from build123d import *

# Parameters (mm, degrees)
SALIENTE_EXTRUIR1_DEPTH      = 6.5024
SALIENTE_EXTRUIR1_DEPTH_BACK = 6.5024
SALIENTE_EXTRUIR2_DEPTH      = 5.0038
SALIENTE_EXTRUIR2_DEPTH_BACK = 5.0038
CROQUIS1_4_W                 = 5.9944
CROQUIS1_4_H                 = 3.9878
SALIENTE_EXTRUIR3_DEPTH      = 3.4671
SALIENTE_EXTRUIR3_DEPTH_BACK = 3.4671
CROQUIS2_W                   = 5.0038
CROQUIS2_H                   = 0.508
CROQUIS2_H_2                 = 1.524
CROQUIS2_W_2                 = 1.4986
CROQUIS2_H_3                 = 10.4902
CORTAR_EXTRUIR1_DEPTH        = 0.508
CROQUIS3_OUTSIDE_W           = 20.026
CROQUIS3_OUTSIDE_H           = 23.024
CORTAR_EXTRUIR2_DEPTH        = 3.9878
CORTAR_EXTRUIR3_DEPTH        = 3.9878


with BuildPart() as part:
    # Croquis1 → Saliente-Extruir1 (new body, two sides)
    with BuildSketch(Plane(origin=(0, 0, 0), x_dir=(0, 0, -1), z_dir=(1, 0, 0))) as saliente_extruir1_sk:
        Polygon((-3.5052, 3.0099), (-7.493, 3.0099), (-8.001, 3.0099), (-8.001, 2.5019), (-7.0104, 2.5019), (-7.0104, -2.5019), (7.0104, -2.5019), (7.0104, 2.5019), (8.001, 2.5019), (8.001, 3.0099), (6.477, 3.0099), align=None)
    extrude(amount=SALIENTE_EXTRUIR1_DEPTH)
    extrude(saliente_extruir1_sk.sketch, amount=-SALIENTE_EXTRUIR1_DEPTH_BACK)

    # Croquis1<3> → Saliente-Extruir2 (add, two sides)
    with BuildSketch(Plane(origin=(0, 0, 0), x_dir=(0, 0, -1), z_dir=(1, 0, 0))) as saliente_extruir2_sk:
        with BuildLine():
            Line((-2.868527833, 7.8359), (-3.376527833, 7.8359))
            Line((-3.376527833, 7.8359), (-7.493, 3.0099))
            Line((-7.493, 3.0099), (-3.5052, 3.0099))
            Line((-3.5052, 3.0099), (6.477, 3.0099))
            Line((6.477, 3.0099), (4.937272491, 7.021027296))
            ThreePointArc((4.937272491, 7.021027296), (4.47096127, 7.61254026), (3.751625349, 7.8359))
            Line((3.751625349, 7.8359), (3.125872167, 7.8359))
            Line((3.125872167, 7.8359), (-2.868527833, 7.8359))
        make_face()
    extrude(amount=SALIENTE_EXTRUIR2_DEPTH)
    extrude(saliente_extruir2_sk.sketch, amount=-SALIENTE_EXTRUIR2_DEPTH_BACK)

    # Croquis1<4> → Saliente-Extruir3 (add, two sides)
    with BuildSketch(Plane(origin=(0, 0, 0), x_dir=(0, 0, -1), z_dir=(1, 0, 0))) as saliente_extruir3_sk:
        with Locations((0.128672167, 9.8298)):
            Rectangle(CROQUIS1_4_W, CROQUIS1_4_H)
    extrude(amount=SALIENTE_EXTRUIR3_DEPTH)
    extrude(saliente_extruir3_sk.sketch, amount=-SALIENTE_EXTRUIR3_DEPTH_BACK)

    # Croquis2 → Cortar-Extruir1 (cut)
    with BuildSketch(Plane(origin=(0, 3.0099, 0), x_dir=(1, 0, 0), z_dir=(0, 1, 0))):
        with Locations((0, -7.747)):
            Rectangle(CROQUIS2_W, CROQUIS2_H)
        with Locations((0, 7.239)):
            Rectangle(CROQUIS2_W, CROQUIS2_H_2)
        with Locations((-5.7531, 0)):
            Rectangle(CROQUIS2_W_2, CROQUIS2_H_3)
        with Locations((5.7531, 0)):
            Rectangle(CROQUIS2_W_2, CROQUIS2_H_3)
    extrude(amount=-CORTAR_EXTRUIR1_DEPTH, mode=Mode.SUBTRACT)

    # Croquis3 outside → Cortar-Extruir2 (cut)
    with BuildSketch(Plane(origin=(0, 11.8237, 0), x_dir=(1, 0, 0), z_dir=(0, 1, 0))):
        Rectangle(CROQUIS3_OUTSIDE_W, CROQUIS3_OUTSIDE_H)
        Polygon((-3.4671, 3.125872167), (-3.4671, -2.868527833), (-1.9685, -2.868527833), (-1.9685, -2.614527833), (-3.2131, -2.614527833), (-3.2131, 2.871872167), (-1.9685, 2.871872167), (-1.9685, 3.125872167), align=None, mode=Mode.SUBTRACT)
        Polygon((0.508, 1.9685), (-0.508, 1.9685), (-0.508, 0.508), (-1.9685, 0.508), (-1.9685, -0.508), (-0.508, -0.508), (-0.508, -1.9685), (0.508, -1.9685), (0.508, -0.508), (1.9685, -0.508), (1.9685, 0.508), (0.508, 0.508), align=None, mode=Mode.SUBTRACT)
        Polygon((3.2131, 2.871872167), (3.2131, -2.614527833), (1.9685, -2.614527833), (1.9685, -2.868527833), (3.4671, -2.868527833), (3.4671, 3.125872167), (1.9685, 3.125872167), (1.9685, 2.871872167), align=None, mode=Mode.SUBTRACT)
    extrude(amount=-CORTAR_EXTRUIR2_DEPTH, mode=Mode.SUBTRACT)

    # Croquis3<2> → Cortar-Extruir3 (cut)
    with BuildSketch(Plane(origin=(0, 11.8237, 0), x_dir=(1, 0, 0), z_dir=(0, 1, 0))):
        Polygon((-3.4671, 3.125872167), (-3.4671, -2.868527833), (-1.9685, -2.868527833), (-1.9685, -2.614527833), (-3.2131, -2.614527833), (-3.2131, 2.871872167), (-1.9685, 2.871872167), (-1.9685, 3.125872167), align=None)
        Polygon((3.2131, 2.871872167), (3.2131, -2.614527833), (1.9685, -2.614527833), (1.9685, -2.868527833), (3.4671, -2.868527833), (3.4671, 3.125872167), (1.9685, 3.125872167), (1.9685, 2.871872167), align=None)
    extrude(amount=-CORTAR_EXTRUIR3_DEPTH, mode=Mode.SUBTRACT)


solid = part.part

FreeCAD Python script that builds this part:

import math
import FreeCAD as App
import Part
import Sketcher
from FreeCAD import Vector
Q = App.Units.Quantity

doc = App.newDocument("Part")
body = doc.addObject("PartDesign::Body", "Body")

# Sketch on YZ plane
sketch1 = body.newObject("Sketcher::SketchObject", "Sketch")
sketch1.AttachmentSupport = (doc.getObject("YZ_Plane"), [""])
sketch1.MapMode = "FlatFace"
sketch1.addGeometry([
    Part.LineSegment(Vector(3, 8, 0), Vector(2.5, 8, 0)),  # 0
    Part.LineSegment(Vector(2.5, 8, 0), Vector(2.5, 7, 0)),  # 1
    Part.LineSegment(Vector(2.5, 7, 0), Vector(-2.5, 7, 0)),  # 2
    Part.LineSegment(Vector(-2.5, 7, 0), Vector(-2.5, -7, 0)),  # 3
    Part.LineSegment(Vector(-2.5, -7, 0), Vector(2.5, -7, 0)),  # 4
    Part.LineSegment(Vector(2.5, -7, 0), Vector(2.5, -8, 0)),  # 5
    Part.LineSegment(Vector(2.5, -8, 0), Vector(3, -8, 0)),  # 6
    Part.LineSegment(Vector(3, -8, 0), Vector(3, 8, 0)),  # 7
], False)
sketch1.addConstraint([
    Sketcher.Constraint("Coincident", 0, 2, 1, 1),
    Sketcher.Constraint("Coincident", 1, 2, 2, 1),
    Sketcher.Constraint("Coincident", 2, 2, 3, 1),
    Sketcher.Constraint("Coincident", 3, 2, 4, 1),
    Sketcher.Constraint("Coincident", 4, 2, 5, 1),
    Sketcher.Constraint("Coincident", 5, 2, 6, 1),
    Sketcher.Constraint("Coincident", 6, 2, 7, 1),
    Sketcher.Constraint("Coincident", 7, 2, 0, 1),
    Sketcher.Constraint("Horizontal", 0),
    Sketcher.Constraint("Vertical", 1),
    Sketcher.Constraint("Horizontal", 2),
    Sketcher.Constraint("Vertical", 3),
    Sketcher.Constraint("Horizontal", 4),
    Sketcher.Constraint("Vertical", 5),
    Sketcher.Constraint("Horizontal", 6),
    Sketcher.Constraint("Vertical", 7),
    Sketcher.Constraint("Symmetric", 1, 2, 3, 2, -1, 1),
    Sketcher.Constraint("Symmetric", 0, 2, 5, 2, -1),
    Sketcher.Constraint("DistanceX", 0, 2, 0, 1, Q("0.02 in")),
    Sketcher.Constraint("DistanceY", 7, 1, 7, 2, Q("0.63 in")),
    Sketcher.Constraint("DistanceX", 2, 2, 2, 1, Q("0.197 in")),
    Sketcher.Constraint("DistanceY", 1, 2, 1, 1, Q("0.039 in")),
])
pad1 = body.newObject("PartDesign::Pad", "Pad")
pad1.Profile = sketch1
pad1.Type = "TwoLengths"
pad1.Length = Q("0.256 in")
pad1.Length2 = Q("0.256 in")

# Sketch on YZ plane
sketch2 = body.newObject("Sketcher::SketchObject", "Sketch001")
sketch2.AttachmentSupport = (doc.getObject("YZ_Plane"), [""])
sketch2.MapMode = "FlatFace"
sketch2.addGeometry([
    Part.LineSegment(Vector(7.8, 3.4, 0), Vector(3, 7.5, 0)),  # 0
    Part.LineSegment(Vector(3, 7.5, 0), Vector(3, -6.5, 0)),  # 1
    Part.LineSegment(Vector(3, -6.5, 0), Vector(7, -4.9, 0)),  # 2
    Part.ArcOfCircle(Part.Circle(Vector(6.6, -3.8, 0), Vector(0, 0, 1), 1.3), math.radians(-69), math.radians(0)),  # 3
    Part.LineSegment(Vector(7.8, -3.8, 0), Vector(7.8, 3.4, 0)),  # 4
], False)
sketch2.addConstraint([
    Sketcher.Constraint("Coincident", 0, 2, 1, 1),
    Sketcher.Constraint("Coincident", 1, 2, 2, 1),
    Sketcher.Constraint("Tangent", 2, 2, 3, 1),
    Sketcher.Constraint("Tangent", 3, 2, 4, 1),
    Sketcher.Constraint("Coincident", 4, 2, 0, 1),
    Sketcher.Constraint("Vertical", 1),
    Sketcher.Constraint("Vertical", 4),
    Sketcher.Constraint("Radius", 3, Q("0.05 in")),
    Sketcher.Constraint("Angle", 2, Q("21 deg")),
    Sketcher.Constraint("DistanceY", 1, 2, 1, 1, Q("0.55 in")),
    Sketcher.Constraint("DistanceX", 0, 2, 3, 3, Q("0.14 in")),
    Sketcher.Constraint("DistanceY", -1, 1, 0, 2, Q("0.295 in")),
    Sketcher.Constraint("DistanceX", -1, 1, 3, 3, Q("0.2585 in")),
    Sketcher.Constraint("DistanceY", 2, 2, 4, 2, Q("8.3138 mm")),
])
pad2 = body.newObject("PartDesign::Pad", "Pad001")
pad2.Profile = sketch2
pad2.Type = "TwoLengths"
pad2.Length = Q("0.197 in")
pad2.Length2 = Q("0.197 in")

# Sketch on YZ plane
sketch3 = body.newObject("Sketcher::SketchObject", "Sketch002")
sketch3.AttachmentSupport = (doc.getObject("YZ_Plane"), [""])
sketch3.MapMode = "FlatFace"
sketch3.addGeometry([
    Part.LineSegment(Vector(11.8, 2.9, 0), Vector(7.8, 2.9, 0)),
    Part.LineSegment(Vector(7.8, 2.9, 0), Vector(7.8, -3.1, 0)),
    Part.LineSegment(Vector(7.8, -3.1, 0), Vector(11.8, -3.1, 0)),
    Part.LineSegment(Vector(11.8, -3.1, 0), Vector(11.8, 2.9, 0)),
], False)
sketch3.addConstraint([
    Sketcher.Constraint("Coincident", 0, 2, 1, 1),
    Sketcher.Constraint("Coincident", 1, 2, 2, 1),
    Sketcher.Constraint("Coincident", 2, 2, 3, 1),
    Sketcher.Constraint("Coincident", 3, 2, 0, 1),
    Sketcher.Constraint("Horizontal", 0),
    Sketcher.Constraint("Vertical", 1),
    Sketcher.Constraint("Horizontal", 2),
    Sketcher.Constraint("Vertical", 3),
    Sketcher.Constraint("DistanceX", 0, 2, 0, 1, Q("0.157 in")),
    Sketcher.Constraint("DistanceY", 1, 2, 1, 1, Q("0.236 in")),
    Sketcher.Constraint("DistanceX", -1, 1, 0, 2, Q("0.3085 in")),
    Sketcher.Constraint("DistanceY", -1, 1, 0, 2, Q("2.868528 mm")),
])
pad3 = body.newObject("PartDesign::Pad", "Pad002")
pad3.Profile = sketch3
pad3.Type = "TwoLengths"
pad3.Length = Q("0.1365 in")
pad3.Length2 = Q("0.1365 in")

# Sketch on XZ plane
sketch4 = body.newObject("Sketcher::SketchObject", "Sketch003")
sketch4.AttachmentSupport = (doc.getObject("XZ_Plane"), [""])
sketch4.MapMode = "FlatFace"
sketch4.AttachmentOffset = App.Placement(Vector(0, 0, -0.1185 * 25.4), App.Rotation())
sketch4.addGeometry([
    Part.LineSegment(Vector(-2.5, 7.5, 0), Vector(-2.5, 8, 0)),  # 0
    Part.LineSegment(Vector(-2.5, 8, 0), Vector(2.5, 8, 0)),  # 1
    Part.LineSegment(Vector(2.5, 8, 0), Vector(2.5, 7.5, 0)),  # 2
    Part.LineSegment(Vector(2.5, 7.5, 0), Vector(-2.5, 7.5, 0)),  # 3
    Part.LineSegment(Vector(-2.5, -8, 0), Vector(-2.5, -6.5, 0)),  # 4
    Part.LineSegment(Vector(-2.5, -6.5, 0), Vector(2.5, -6.5, 0)),  # 5
    Part.LineSegment(Vector(2.5, -6.5, 0), Vector(2.5, -8, 0)),  # 6
    Part.LineSegment(Vector(2.5, -8, 0), Vector(-2.5, -8, 0)),  # 7
    Part.LineSegment(Vector(-6.5, -5.2, 0), Vector(-6.5, 5.2, 0)),  # 8
    Part.LineSegment(Vector(-6.5, 5.2, 0), Vector(-5, 5.2, 0)),  # 9
    Part.LineSegment(Vector(-5, 5.2, 0), Vector(-5, -5.2, 0)),  # 10
    Part.LineSegment(Vector(-5, -5.2, 0), Vector(-6.5, -5.2, 0)),  # 11
    Part.LineSegment(Vector(5, -5.2, 0), Vector(5, 5.2, 0)),  # 12
    Part.LineSegment(Vector(5, 5.2, 0), Vector(6.5, 5.2, 0)),  # 13
    Part.LineSegment(Vector(6.5, 5.2, 0), Vector(6.5, -5.2, 0)),  # 14
    Part.LineSegment(Vector(6.5, -5.2, 0), Vector(5, -5.2, 0)),  # 15
], False)
sketch4.addConstraint([
    Sketcher.Constraint("Coincident", 0, 2, 1, 1),
    Sketcher.Constraint("Coincident", 1, 2, 2, 1),
    Sketcher.Constraint("Coincident", 2, 2, 3, 1),
    Sketcher.Constraint("Coincident", 3, 2, 0, 1),
    Sketcher.Constraint("Coincident", 4, 2, 5, 1),
    Sketcher.Constraint("Coincident", 5, 2, 6, 1),
    Sketcher.Constraint("Coincident", 6, 2, 7, 1),
    Sketcher.Constraint("Coincident", 7, 2, 4, 1),
    Sketcher.Constraint("Coincident", 8, 2, 9, 1),
    Sketcher.Constraint("Coincident", 9, 2, 10, 1),
    Sketcher.Constraint("Coincident", 10, 2, 11, 1),
    Sketcher.Constraint("Coincident", 11, 2, 8, 1),
    Sketcher.Constraint("Coincident", 12, 2, 13, 1),
    Sketcher.Constraint("Coincident", 13, 2, 14, 1),
    Sketcher.Constraint("Coincident", 14, 2, 15, 1),
    Sketcher.Constraint("Coincident", 15, 2, 12, 1),
    Sketcher.Constraint("Vertical", 0),
    Sketcher.Constraint("Horizontal", 1),
    Sketcher.Constraint("Vertical", 2),
    Sketcher.Constraint("Horizontal", 3),
    Sketcher.Constraint("Vertical", 4),
    Sketcher.Constraint("Horizontal", 5),
    Sketcher.Constraint("Vertical", 6),
    Sketcher.Constraint("Horizontal", 7),
    Sketcher.Constraint("Vertical", 8),
    Sketcher.Constraint("Horizontal", 9),
    Sketcher.Constraint("Vertical", 10),
    Sketcher.Constraint("Horizontal", 11),
    Sketcher.Constraint("Vertical", 12),
    Sketcher.Constraint("Horizontal", 13),
    Sketcher.Constraint("Vertical", 14),
    Sketcher.Constraint("Horizontal", 15),
    Sketcher.Constraint("Symmetric", 0, 2, 6, 2, -1, 1),
    Sketcher.Constraint("Symmetric", 10, 2, 12, 2, -1, 1),
    Sketcher.Constraint("Symmetric", 8, 2, 14, 2, -1, 1),
    Sketcher.Constraint("Horizontal", 9, 2, 12, 2),
    Sketcher.Constraint("Vertical", 3, 2, 4, 2),
    Sketcher.Constraint("Vertical", 2, 2, 5, 2),
    Sketcher.Constraint("DistanceY", 0, 1, 0, 2, Q("0.02 in")),
    Sketcher.Constraint("DistanceY", 4, 1, 4, 2, Q("0.06 in")),
    Sketcher.Constraint("DistanceX", 1, 1, 1, 2, Q("0.197 in")),
    Sketcher.Constraint("DistanceX", 9, 1, 9, 2, Q("0.059 in")),
    Sketcher.Constraint("DistanceY", 8, 1, 8, 2, Q("0.413 in")),
    Sketcher.Constraint("DistanceY", 4, 2, 3, 2, Q("0.55 in")),
    Sketcher.Constraint("DistanceX", 8, 2, -1, 1, Q("0.256 in")),
])
pocket1 = body.newObject("PartDesign::Pocket", "Pocket")
pocket1.Profile = sketch4
pocket1.Length = Q("0.02 in")
pocket1.Reversed = True

# Sketch on XZ plane
sketch5 = body.newObject("Sketcher::SketchObject", "Sketch004")
sketch5.AttachmentSupport = (doc.getObject("XZ_Plane"), [""])
sketch5.MapMode = "FlatFace"
sketch5.AttachmentOffset = App.Placement(Vector(0, 0, -0.4655 * 25.4), App.Rotation())
sketch5.addGeometry([
    Part.LineSegment(Vector(-10.01, -11.51, 0), Vector(-10.01, 11.51, 0)),  # 0
    Part.LineSegment(Vector(-10.01, 11.51, 0), Vector(10.01, 11.51, 0)),  # 1
    Part.LineSegment(Vector(10.01, 11.51, 0), Vector(10.01, -11.51, 0)),  # 2
    Part.LineSegment(Vector(10.01, -11.51, 0), Vector(-10.01, -11.51, 0)),  # 3
    Part.LineSegment(Vector(-3.47, 2.87, 0), Vector(-3.47, -3.13, 0)),  # 4
    Part.LineSegment(Vector(-3.47, -3.13, 0), Vector(-1.97, -3.13, 0)),  # 5
    Part.LineSegment(Vector(-1.97, -3.13, 0), Vector(-1.97, -2.87, 0)),  # 6
    Part.LineSegment(Vector(-1.97, -2.87, 0), Vector(-3.21, -2.87, 0)),  # 7
    Part.LineSegment(Vector(-3.21, -2.87, 0), Vector(-3.21, 2.61, 0)),  # 8
    Part.LineSegment(Vector(-3.21, 2.61, 0), Vector(-1.97, 2.61, 0)),  # 9
    Part.LineSegment(Vector(-1.97, 2.61, 0), Vector(-1.97, 2.87, 0)),  # 10
    Part.LineSegment(Vector(-1.97, 2.87, 0), Vector(-3.47, 2.87, 0)),  # 11
    Part.LineSegment(Vector(-0.51, -1.97, 0), Vector(0.51, -1.97, 0)),  # 12
    Part.LineSegment(Vector(0.51, -1.97, 0), Vector(0.51, -0.51, 0)),  # 13
    Part.LineSegment(Vector(0.51, -0.51, 0), Vector(1.97, -0.51, 0)),  # 14
    Part.LineSegment(Vector(1.97, -0.51, 0), Vector(1.97, 0.51, 0)),  # 15
    Part.LineSegment(Vector(1.97, 0.51, 0), Vector(0.51, 0.51, 0)),  # 16
    Part.LineSegment(Vector(0.51, 0.51, 0), Vector(0.51, 1.97, 0)),  # 17
    Part.LineSegment(Vector(0.51, 1.97, 0), Vector(-0.51, 1.97, 0)),  # 18
    Part.LineSegment(Vector(-0.51, 1.97, 0), Vector(-0.51, 0.51, 0)),  # 19
    Part.LineSegment(Vector(-0.51, 0.51, 0), Vector(-1.97, 0.51, 0)),  # 20
    Part.LineSegment(Vector(-1.97, 0.51, 0), Vector(-1.97, -0.51, 0)),  # 21
    Part.LineSegment(Vector(-1.97, -0.51, 0), Vector(-0.51, -0.51, 0)),  # 22
    Part.LineSegment(Vector(-0.51, -0.51, 0), Vector(-0.51, -1.97, 0)),  # 23
    Part.LineSegment(Vector(3.21, 2.61, 0), Vector(3.21, -2.87, 0)),  # 24
    Part.LineSegment(Vector(3.21, -2.87, 0), Vector(1.97, -2.87, 0)),  # 25
    Part.LineSegment(Vector(1.97, -2.87, 0), Vector(1.97, -3.13, 0)),  # 26
    Part.LineSegment(Vector(1.97, -3.13, 0), Vector(3.47, -3.13, 0)),  # 27
    Part.LineSegment(Vector(3.47, -3.13, 0), Vector(3.47, 2.87, 0)),  # 28
    Part.LineSegment(Vector(3.47, 2.87, 0), Vector(1.97, 2.87, 0)),  # 29
    Part.LineSegment(Vector(1.97, 2.87, 0), Vector(1.97, 2.61, 0)),  # 30
    Part.LineSegment(Vector(1.97, 2.61, 0), Vector(3.21, 2.61, 0)),  # 31
], False)
sketch5.addConstraint([
    Sketcher.Constraint("Coincident", 0, 2, 1, 1),
    Sketcher.Constraint("Coincident", 1, 2, 2, 1),
    Sketcher.Constraint("Coincident", 2, 2, 3, 1),
    Sketcher.Constraint("Coincident", 3, 2, 0, 1),
    Sketcher.Constraint("Coincident", 4, 2, 5, 1),
    Sketcher.Constraint("Coincident", 5, 2, 6, 1),
    Sketcher.Constraint("Coincident", 6, 2, 7, 1),
    Sketcher.Constraint("Coincident", 7, 2, 8, 1),
    Sketcher.Constraint("Coincident", 8, 2, 9, 1),
    Sketcher.Constraint("Coincident", 9, 2, 10, 1),
    Sketcher.Constraint("Coincident", 10, 2, 11, 1),
    Sketcher.Constraint("Coincident", 11, 2, 4, 1),
    Sketcher.Constraint("Coincident", 12, 2, 13, 1),
    Sketcher.Constraint("Coincident", 13, 2, 14, 1),
    Sketcher.Constraint("Coincident", 14, 2, 15, 1),
    Sketcher.Constraint("Coincident", 15, 2, 16, 1),
    Sketcher.Constraint("Coincident", 16, 2, 17, 1),
    Sketcher.Constraint("Coincident", 17, 2, 18, 1),
    Sketcher.Constraint("Coincident", 18, 2, 19, 1),
    Sketcher.Constraint("Coincident", 19, 2, 20, 1),
    Sketcher.Constraint("Coincident", 20, 2, 21, 1),
    Sketcher.Constraint("Coincident", 21, 2, 22, 1),
    Sketcher.Constraint("Coincident", 22, 2, 23, 1),
    Sketcher.Constraint("Coincident", 23, 2, 12, 1),
    Sketcher.Constraint("Coincident", 24, 2, 25, 1),
    Sketcher.Constraint("Coincident", 25, 2, 26, 1),
    Sketcher.Constraint("Coincident", 26, 2, 27, 1),
    Sketcher.Constraint("Coincident", 27, 2, 28, 1),
    Sketcher.Constraint("Coincident", 28, 2, 29, 1),
    Sketcher.Constraint("Coincident", 29, 2, 30, 1),
    Sketcher.Constraint("Coincident", 30, 2, 31, 1),
    Sketcher.Constraint("Coincident", 31, 2, 24, 1),
    Sketcher.Constraint("Vertical", 0),
    Sketcher.Constraint("Horizontal", 1),
    Sketcher.Constraint("Vertical", 2),
    Sketcher.Constraint("Horizontal", 3),
    Sketcher.Constraint("Vertical", 4),
    Sketcher.Constraint("Horizontal", 5),
    Sketcher.Constraint("Vertical", 6),
    Sketcher.Constraint("Horizontal", 7),
    Sketcher.Constraint("Vertical", 8),
    Sketcher.Constraint("Horizontal", 9),
    Sketcher.Constraint("Vertical", 10),
    Sketcher.Constraint("Horizontal", 11),
    Sketcher.Constraint("Horizontal", 12),
    Sketcher.Constraint("Vertical", 13),
    Sketcher.Constraint("Horizontal", 14),
    Sketcher.Constraint("Vertical", 15),
    Sketcher.Constraint("Horizontal", 16),
    Sketcher.Constraint("Vertical", 17),
    Sketcher.Constraint("Horizontal", 18),
    Sketcher.Constraint("Vertical", 19),
    Sketcher.Constraint("Horizontal", 20),
    Sketcher.Constraint("Vertical", 21),
    Sketcher.Constraint("Horizontal", 22),
    Sketcher.Constraint("Vertical", 23),
    Sketcher.Constraint("Vertical", 24),
    Sketcher.Constraint("Horizontal", 25),
    Sketcher.Constraint("Vertical", 26),
    Sketcher.Constraint("Horizontal", 27),
    Sketcher.Constraint("Vertical", 28),
    Sketcher.Constraint("Horizontal", 29),
    Sketcher.Constraint("Vertical", 30),
    Sketcher.Constraint("Horizontal", 31),
    Sketcher.Constraint("Symmetric", 0, 2, 2, 2, -1, 1),
    Sketcher.Constraint("Symmetric", 12, 2, 18, 2, -1, 1),
    Sketcher.Constraint("Symmetric", 14, 2, 20, 2, -1, 1),
    Sketcher.Constraint("Symmetric", 16, 2, 22, 2, -1, 1),
    Sketcher.Constraint("Symmetric", 16, 2, 19, 2, -2),
    Sketcher.Constraint("Symmetric", 7, 2, 24, 2, -2),
    Sketcher.Constraint("Symmetric", 5, 2, 26, 2, -2),
    Sketcher.Constraint("Symmetric", 11, 2, 28, 2, -2),
    Sketcher.Constraint("Symmetric", 9, 2, 30, 2, -2),
    Sketcher.Constraint("Vertical", 6, 2, 9, 2),
    Sketcher.Constraint("Vertical", 10, 2, 20, 2),
    Sketcher.Constraint("Equal", 6, 10),
    Sketcher.Constraint("Equal", 22, 13),
    Sketcher.Constraint("Equal", 18, 15),
    Sketcher.Constraint("DistanceX", 12, 1, 12, 2, Q("0.04 in")),
    Sketcher.Constraint("DistanceY", 6, 1, 6, 2, Q("0.01 in")),
    Sketcher.Constraint("DistanceX", 5, 1, 5, 2, Q("0.059 in")),
    Sketcher.Constraint("DistanceX", 7, 2, 7, 1, Q("0.049 in")),
    Sketcher.Constraint("DistanceY", 4, 2, 4, 1, Q("0.236 in")),
    Sketcher.Constraint("DistanceX", 14, 1, 14, 2, Q("0.0575 in")),
    Sketcher.Constraint("DistanceX", 1, 1, 1, 2, Q("20.026 mm")),
    Sketcher.Constraint("DistanceY", 0, 1, 0, 2, Q("23.024 mm")),
    Sketcher.Constraint("DistanceY", 4, 2, -1, 1, Q("3.125872 mm")),
])
pocket2 = body.newObject("PartDesign::Pocket", "Pocket001")
pocket2.Profile = sketch5
pocket2.Length = Q("0.157 in")
pocket2.Reversed = True

# Sketch on XZ plane
sketch6 = body.newObject("Sketcher::SketchObject", "Sketch005")
sketch6.AttachmentSupport = (doc.getObject("XZ_Plane"), [""])
sketch6.MapMode = "FlatFace"
sketch6.AttachmentOffset = App.Placement(Vector(0, 0, -0.4655 * 25.4), App.Rotation())
sketch6.addGeometry([
    Part.LineSegment(Vector(-3.47, -3.13, 0), Vector(-3.47, 2.87, 0)),  # 0
    Part.LineSegment(Vector(-3.47, 2.87, 0), Vector(-1.97, 2.87, 0)),  # 1
    Part.LineSegment(Vector(-1.97, 2.87, 0), Vector(-1.97, 2.61, 0)),  # 2
    Part.LineSegment(Vector(-1.97, 2.61, 0), Vector(-3.21, 2.61, 0)),  # 3
    Part.LineSegment(Vector(-3.21, 2.61, 0), Vector(-3.21, -2.87, 0)),  # 4
    Part.LineSegment(Vector(-3.21, -2.87, 0), Vector(-1.97, -2.87, 0)),  # 5
    Part.LineSegment(Vector(-1.97, -2.87, 0), Vector(-1.97, -3.13, 0)),  # 6
    Part.LineSegment(Vector(-1.97, -3.13, 0), Vector(-3.47, -3.13, 0)),  # 7
    Part.LineSegment(Vector(3.21, -2.87, 0), Vector(3.21, 2.61, 0)),  # 8
    Part.LineSegment(Vector(3.21, 2.61, 0), Vector(1.97, 2.61, 0)),  # 9
    Part.LineSegment(Vector(1.97, 2.61, 0), Vector(1.97, 2.87, 0)),  # 10
    Part.LineSegment(Vector(1.97, 2.87, 0), Vector(3.47, 2.87, 0)),  # 11
    Part.LineSegment(Vector(3.47, 2.87, 0), Vector(3.47, -3.13, 0)),  # 12
    Part.LineSegment(Vector(3.47, -3.13, 0), Vector(1.97, -3.13, 0)),  # 13
    Part.LineSegment(Vector(1.97, -3.13, 0), Vector(1.97, -2.87, 0)),  # 14
    Part.LineSegment(Vector(1.97, -2.87, 0), Vector(3.21, -2.87, 0)),  # 15
], False)
sketch6.addConstraint([
    Sketcher.Constraint("Coincident", 0, 2, 1, 1),
    Sketcher.Constraint("Coincident", 1, 2, 2, 1),
    Sketcher.Constraint("Coincident", 2, 2, 3, 1),
    Sketcher.Constraint("Coincident", 3, 2, 4, 1),
    Sketcher.Constraint("Coincident", 4, 2, 5, 1),
    Sketcher.Constraint("Coincident", 5, 2, 6, 1),
    Sketcher.Constraint("Coincident", 6, 2, 7, 1),
    Sketcher.Constraint("Coincident", 7, 2, 0, 1),
    Sketcher.Constraint("Coincident", 8, 2, 9, 1),
    Sketcher.Constraint("Coincident", 9, 2, 10, 1),
    Sketcher.Constraint("Coincident", 10, 2, 11, 1),
    Sketcher.Constraint("Coincident", 11, 2, 12, 1),
    Sketcher.Constraint("Coincident", 12, 2, 13, 1),
    Sketcher.Constraint("Coincident", 13, 2, 14, 1),
    Sketcher.Constraint("Coincident", 14, 2, 15, 1),
    Sketcher.Constraint("Coincident", 15, 2, 8, 1),
    Sketcher.Constraint("Vertical", 0),
    Sketcher.Constraint("Horizontal", 1),
    Sketcher.Constraint("Vertical", 2),
    Sketcher.Constraint("Horizontal", 3),
    Sketcher.Constraint("Vertical", 4),
    Sketcher.Constraint("Horizontal", 5),
    Sketcher.Constraint("Vertical", 6),
    Sketcher.Constraint("Horizontal", 7),
    Sketcher.Constraint("Vertical", 8),
    Sketcher.Constraint("Horizontal", 9),
    Sketcher.Constraint("Vertical", 10),
    Sketcher.Constraint("Horizontal", 11),
    Sketcher.Constraint("Vertical", 12),
    Sketcher.Constraint("Horizontal", 13),
    Sketcher.Constraint("Vertical", 14),
    Sketcher.Constraint("Horizontal", 15),
    Sketcher.Constraint("Symmetric", 3, 2, 8, 2, -2),
    Sketcher.Constraint("Symmetric", 1, 2, 10, 2, -2),
    Sketcher.Constraint("Symmetric", 7, 2, 12, 2, -2),
    Sketcher.Constraint("Symmetric", 5, 2, 14, 2, -2),
    Sketcher.Constraint("Vertical", 2, 2, 5, 2),
    Sketcher.Constraint("Equal", 2, 6),
    Sketcher.Constraint("DistanceY", 2, 2, 2, 1, Q("0.01 in")),
    Sketcher.Constraint("DistanceX", 1, 1, 1, 2, Q("0.059 in")),
    Sketcher.Constraint("DistanceX", 3, 2, 3, 1, Q("0.049 in")),
    Sketcher.Constraint("DistanceY", 0, 1, 0, 2, Q("0.236 in")),
    Sketcher.Constraint("DistanceX", 2, 2, 8, 2, Q("0.204 in")),
    Sketcher.Constraint("DistanceY", -1, 1, 0, 2, Q("2.868528 mm")),
])
pocket3 = body.newObject("PartDesign::Pocket", "Pocket002")
pocket3.Profile = sketch6
pocket3.Length = Q("0.157 in")
pocket3.Reversed = True

doc.recompute()
